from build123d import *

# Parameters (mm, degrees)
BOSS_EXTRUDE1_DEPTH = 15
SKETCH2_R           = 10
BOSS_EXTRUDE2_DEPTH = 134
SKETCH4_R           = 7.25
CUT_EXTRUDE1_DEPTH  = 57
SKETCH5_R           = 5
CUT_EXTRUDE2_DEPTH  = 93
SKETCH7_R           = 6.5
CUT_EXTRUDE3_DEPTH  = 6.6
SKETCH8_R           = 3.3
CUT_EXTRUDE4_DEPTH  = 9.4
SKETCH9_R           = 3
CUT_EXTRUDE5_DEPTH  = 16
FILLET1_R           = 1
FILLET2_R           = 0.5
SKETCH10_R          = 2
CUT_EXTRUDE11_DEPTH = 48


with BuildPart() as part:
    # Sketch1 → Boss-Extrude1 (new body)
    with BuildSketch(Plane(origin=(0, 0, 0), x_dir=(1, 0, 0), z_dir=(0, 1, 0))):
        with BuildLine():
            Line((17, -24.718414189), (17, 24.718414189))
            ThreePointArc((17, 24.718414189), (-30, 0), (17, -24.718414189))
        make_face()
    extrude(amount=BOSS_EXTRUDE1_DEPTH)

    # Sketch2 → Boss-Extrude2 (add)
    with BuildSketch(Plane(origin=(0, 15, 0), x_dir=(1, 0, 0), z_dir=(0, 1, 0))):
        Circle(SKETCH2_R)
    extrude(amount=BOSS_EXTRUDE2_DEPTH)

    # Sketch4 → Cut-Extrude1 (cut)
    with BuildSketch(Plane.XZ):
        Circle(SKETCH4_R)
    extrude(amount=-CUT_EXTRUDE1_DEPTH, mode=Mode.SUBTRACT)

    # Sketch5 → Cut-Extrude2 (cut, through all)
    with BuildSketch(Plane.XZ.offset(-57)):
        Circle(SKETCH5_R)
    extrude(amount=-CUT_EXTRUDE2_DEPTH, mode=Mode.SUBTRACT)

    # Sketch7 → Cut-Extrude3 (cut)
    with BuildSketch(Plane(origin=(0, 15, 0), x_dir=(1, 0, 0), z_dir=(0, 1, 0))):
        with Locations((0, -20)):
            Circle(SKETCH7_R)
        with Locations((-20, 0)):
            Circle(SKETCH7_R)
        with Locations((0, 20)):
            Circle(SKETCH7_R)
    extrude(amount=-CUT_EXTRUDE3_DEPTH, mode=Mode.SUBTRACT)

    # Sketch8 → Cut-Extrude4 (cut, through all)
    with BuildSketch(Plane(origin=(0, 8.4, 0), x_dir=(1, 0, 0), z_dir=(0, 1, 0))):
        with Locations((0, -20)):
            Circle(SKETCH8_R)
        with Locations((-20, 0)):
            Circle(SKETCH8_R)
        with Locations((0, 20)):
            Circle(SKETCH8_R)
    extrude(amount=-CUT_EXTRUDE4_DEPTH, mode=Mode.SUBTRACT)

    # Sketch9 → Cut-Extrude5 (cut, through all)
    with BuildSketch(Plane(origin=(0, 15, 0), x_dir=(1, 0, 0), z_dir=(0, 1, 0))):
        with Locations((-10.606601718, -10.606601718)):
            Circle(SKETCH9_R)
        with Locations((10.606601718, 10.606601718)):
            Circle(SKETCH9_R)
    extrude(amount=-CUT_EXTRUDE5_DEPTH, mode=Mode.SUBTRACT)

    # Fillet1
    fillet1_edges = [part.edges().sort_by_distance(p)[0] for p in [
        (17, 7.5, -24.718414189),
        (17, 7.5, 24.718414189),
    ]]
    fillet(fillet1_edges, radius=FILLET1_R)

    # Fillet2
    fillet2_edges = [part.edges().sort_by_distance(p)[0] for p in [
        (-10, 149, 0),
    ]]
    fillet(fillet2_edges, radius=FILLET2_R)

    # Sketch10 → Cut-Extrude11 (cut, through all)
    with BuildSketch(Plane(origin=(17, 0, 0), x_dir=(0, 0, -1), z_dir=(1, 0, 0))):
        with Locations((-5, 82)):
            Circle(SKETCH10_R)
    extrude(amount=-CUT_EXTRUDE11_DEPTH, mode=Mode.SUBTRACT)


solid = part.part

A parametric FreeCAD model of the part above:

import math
import FreeCAD as App
import Part
import Sketcher

V = App.Vector
Q = App.Units.Quantity


def edges_at(feature, points):
    """Names of the edges that pass closest to the given points."""
    edges = feature.Shape.Edges
    near = lambda p: min(range(len(edges)), key=lambda i: edges[i].distToShape(Part.Vertex(*p))[0])
    return sorted({f"Edge{near(p) + 1}" for p in points})

doc = App.newDocument("Part")
body = doc.addObject("PartDesign::Body", "Body")

sketch1 = body.newObject("Sketcher::SketchObject", "Sketch")
sketch1.AttachmentSupport = (doc.getObject("XZ_Plane"), [""])
sketch1.MapMode = "FlatFace"
sketch1.addGeometry([
    Part.LineSegment(V(17, 24.718414, 0), V(17, -24.718414, 0)),
    Part.ArcOfCircle(Part.Circle(V(0, 0, 0), V(0, 0, 1), 30), math.radians(55.481892), math.radians(304.518108)),
], False)
sketch1.addConstraint([
    Sketcher.Constraint("Coincident", 0, 1, 1, 1),
    Sketcher.Constraint("Coincident", 1, 2, 0, 2),
    Sketcher.Constraint("Vertical", 0),
    Sketcher.Constraint("Coincident", 1, 3, -1, 1),
    Sketcher.Constraint("Radius", 1, Q("30 mm")),
    Sketcher.Constraint("DistanceX", -1, 1, 0, 1, Q("17 mm")),
])
pad1 = body.newObject("PartDesign::Pad", "Pad")
pad1.Profile = sketch1
pad1.Length = 15
pad1.Reversed = True

sketch2 = body.newObject("Sketcher::SketchObject", "Sketch001")
sketch2.AttachmentSupport = (doc.getObject("XZ_Plane"), [""])
sketch2.MapMode = "FlatFace"
sketch2.AttachmentOffset = App.Placement(V(0, 0, -15), App.Rotation())
sketch2.addGeometry(Part.Circle(V(0, 0, 0), V(0, 0, 1), 10), False)
sketch2.addConstraint([
    Sketcher.Constraint("Coincident", 0, 3, -1, 1),
    Sketcher.Constraint("Diameter", 0, Q("20 mm")),
])
pad2 = body.newObject("PartDesign::Pad", "Pad001")
pad2.Profile = sketch2
pad2.Length = 134
pad2.Reversed = True

sketch3 = body.newObject("Sketcher::SketchObject", "Sketch002")
sketch3.AttachmentSupport = (doc.getObject("XZ_Plane"), [""])
sketch3.MapMode = "FlatFace"
sketch3.addGeometry(Part.Circle(V(0, 0, 0), V(0, 0, 1), 7.25), False)
sketch3.addConstraint([
    Sketcher.Constraint("Coincident", 0, 3, -1, 1),
    Sketcher.Constraint("Diameter", 0, Q("14.5 mm")),
])
pocket1 = body.newObject("PartDesign::Pocket", "Pocket")
pocket1.Profile = sketch3
pocket1.Length = 57

sketch4 = body.newObject("Sketcher::SketchObject", "Sketch003")
sketch4.AttachmentSupport = (doc.getObject("XZ_Plane"), [""])
sketch4.MapMode = "FlatFace"
sketch4.AttachmentOffset = App.Placement(V(0, 0, -57), App.Rotation())
sketch4.addGeometry(Part.Circle(V(0, 0, 0), V(0, 0, 1), 5), False)
sketch4.addConstraint([
    Sketcher.Constraint("Coincident", 0, 3, -1, 1),
    Sketcher.Constraint("Diameter", 0, Q("10 mm")),
])
pocket2 = body.newObject("PartDesign::Pocket", "Pocket001")
pocket2.Profile = sketch4
pocket2.Type = "ThroughAll"

sketch5 = body.newObject("Sketcher::SketchObject", "Sketch004")
sketch5.AttachmentSupport = (doc.getObject("XZ_Plane"), [""])
sketch5.MapMode = "FlatFace"
sketch5.AttachmentOffset = App.Placement(V(0, 0, -15), App.Rotation())
sketch5.addGeometry([
    Part.Circle(V(0, 20, 0), V(0, 0, 1), 6.5),
    Part.Circle(V(-20, 0, 0), V(0, 0, 1), 6.5),
    Part.Circle(V(0, -20, 0), V(0, 0, 1), 6.5),
], False)
sketch5.addConstraint([
    Sketcher.Constraint("Equal", 0, 1),
    Sketcher.Constraint("Equal", 1, 2),
    Sketcher.Constraint("Symmetric", 0, 3, 2, 3, -1, 1),
    Sketcher.Constraint("PointOnObject", 0, 3, -2),
    Sketcher.Constraint("PointOnObject", 1, 3, -1),
    Sketcher.Constraint("Diameter", 0, Q("13 mm")),
    Sketcher.Constraint("DistanceY", -1, 1, 0, 3, Q("20 mm")),
    Sketcher.Constraint("DistanceX", 1, 3, -1, 1, Q("20 mm")),
])
pocket3 = body.newObject("PartDesign::Pocket", "Pocket002")
pocket3.Profile = sketch5
pocket3.Length = 6.6
pocket3.Reversed = True

sketch6 = body.newObject("Sketcher::SketchObject", "Sketch005")
sketch6.AttachmentSupport = (doc.getObject("XZ_Plane"), [""])
sketch6.MapMode = "FlatFace"
sketch6.AttachmentOffset = App.Placement(V(0, 0, -8.4), App.Rotation())
sketch6.addGeometry([
    Part.Circle(V(0, 20, 0), V(0, 0, 1), 3.3),
    Part.Circle(V(-20, 0, 0), V(0, 0, 1), 3.3),
    Part.Circle(V(0, -20, 0), V(0, 0, 1), 3.3),
], False)
sketch6.addConstraint([
    Sketcher.Constraint("Equal", 0, 1),
    Sketcher.Constraint("Equal", 1, 2),
    Sketcher.Constraint("Symmetric", 0, 3, 2, 3, -1, 1),
    Sketcher.Constraint("PointOnObject", 0, 3, -2),
    Sketcher.Constraint("PointOnObject", 1, 3, -1),
    Sketcher.Constraint("Diameter", 0, Q("6.6 mm")),
    Sketcher.Constraint("DistanceY", -1, 1, 0, 3, Q("20 mm")),
    Sketcher.Constraint("DistanceX", 1, 3, -1, 1, Q("20 mm")),
])
pocket4 = body.newObject("PartDesign::Pocket", "Pocket003")
pocket4.Profile = sketch6
pocket4.Type = "ThroughAll"
pocket4.Reversed = True

sketch7 = body.newObject("Sketcher::SketchObject", "Sketch006")
sketch7.AttachmentSupport = (doc.getObject("XZ_Plane"), [""])
sketch7.MapMode = "FlatFace"
sketch7.AttachmentOffset = App.Placement(V(0, 0, -15), App.Rotation())
sketch7.addGeometry([
    Part.Circle(V(-10.606602, 10.606602, 0), V(0, 0, 1), 3),
    Part.Circle(V(10.606602, -10.606602, 0), V(0, 0, 1), 3),
], False)
sketch7.addConstraint([
    Sketcher.Constraint("Equal", 0, 1),
    Sketcher.Constraint("Symmetric", 0, 3, 1, 3, -1, 1),
    Sketcher.Constraint("Diameter", 0, Q("6 mm")),
    Sketcher.Constraint("DistanceX", 0, 3, -1, 1, Q("10.606602 mm")),
    Sketcher.Constraint("DistanceY", -1, 1, 0, 3, Q("10.606602 mm")),
])
pocket5 = body.newObject("PartDesign::Pocket", "Pocket004")
pocket5.Profile = sketch7
pocket5.Type = "ThroughAll"
pocket5.Reversed = True
doc.recompute()

fillet = body.newObject("PartDesign::Fillet", "Fillet")
fillet.Base = (pocket5, edges_at(pocket5, [(17, 7.5, -24.718), (17, 7.5, 24.718)]))
fillet.Radius = 1
doc.recompute()

fillet2 = body.newObject("PartDesign::Fillet", "Fillet001")
fillet2.Base = (fillet, edges_at(fillet, [(-10, 149, 0)]))
fillet2.Radius = 0.5

sketch8 = body.newObject("Sketcher::SketchObject", "Sketch007")
sketch8.AttachmentSupport = (doc.getObject("YZ_Plane"), [""])
sketch8.MapMode = "FlatFace"
sketch8.AttachmentOffset = App.Placement(V(0, 0, 17), App.Rotation())
sketch8.addGeometry(Part.Circle(V(82, 5, 0), V(0, 0, 1), 2), False)
sketch8.addConstraint([
    Sketcher.Constraint("Diameter", 0, Q("4 mm")),
    Sketcher.Constraint("DistanceX", -1, 1, 0, 3, Q("82 mm")),
    Sketcher.Constraint("DistanceY", -1, 1, 0, 3, Q("5 mm")),
])
pocket6 = body.newObject("PartDesign::Pocket", "Pocket005")
pocket6.Profile = sketch8
pocket6.Type = "ThroughAll"

doc.recompute()
